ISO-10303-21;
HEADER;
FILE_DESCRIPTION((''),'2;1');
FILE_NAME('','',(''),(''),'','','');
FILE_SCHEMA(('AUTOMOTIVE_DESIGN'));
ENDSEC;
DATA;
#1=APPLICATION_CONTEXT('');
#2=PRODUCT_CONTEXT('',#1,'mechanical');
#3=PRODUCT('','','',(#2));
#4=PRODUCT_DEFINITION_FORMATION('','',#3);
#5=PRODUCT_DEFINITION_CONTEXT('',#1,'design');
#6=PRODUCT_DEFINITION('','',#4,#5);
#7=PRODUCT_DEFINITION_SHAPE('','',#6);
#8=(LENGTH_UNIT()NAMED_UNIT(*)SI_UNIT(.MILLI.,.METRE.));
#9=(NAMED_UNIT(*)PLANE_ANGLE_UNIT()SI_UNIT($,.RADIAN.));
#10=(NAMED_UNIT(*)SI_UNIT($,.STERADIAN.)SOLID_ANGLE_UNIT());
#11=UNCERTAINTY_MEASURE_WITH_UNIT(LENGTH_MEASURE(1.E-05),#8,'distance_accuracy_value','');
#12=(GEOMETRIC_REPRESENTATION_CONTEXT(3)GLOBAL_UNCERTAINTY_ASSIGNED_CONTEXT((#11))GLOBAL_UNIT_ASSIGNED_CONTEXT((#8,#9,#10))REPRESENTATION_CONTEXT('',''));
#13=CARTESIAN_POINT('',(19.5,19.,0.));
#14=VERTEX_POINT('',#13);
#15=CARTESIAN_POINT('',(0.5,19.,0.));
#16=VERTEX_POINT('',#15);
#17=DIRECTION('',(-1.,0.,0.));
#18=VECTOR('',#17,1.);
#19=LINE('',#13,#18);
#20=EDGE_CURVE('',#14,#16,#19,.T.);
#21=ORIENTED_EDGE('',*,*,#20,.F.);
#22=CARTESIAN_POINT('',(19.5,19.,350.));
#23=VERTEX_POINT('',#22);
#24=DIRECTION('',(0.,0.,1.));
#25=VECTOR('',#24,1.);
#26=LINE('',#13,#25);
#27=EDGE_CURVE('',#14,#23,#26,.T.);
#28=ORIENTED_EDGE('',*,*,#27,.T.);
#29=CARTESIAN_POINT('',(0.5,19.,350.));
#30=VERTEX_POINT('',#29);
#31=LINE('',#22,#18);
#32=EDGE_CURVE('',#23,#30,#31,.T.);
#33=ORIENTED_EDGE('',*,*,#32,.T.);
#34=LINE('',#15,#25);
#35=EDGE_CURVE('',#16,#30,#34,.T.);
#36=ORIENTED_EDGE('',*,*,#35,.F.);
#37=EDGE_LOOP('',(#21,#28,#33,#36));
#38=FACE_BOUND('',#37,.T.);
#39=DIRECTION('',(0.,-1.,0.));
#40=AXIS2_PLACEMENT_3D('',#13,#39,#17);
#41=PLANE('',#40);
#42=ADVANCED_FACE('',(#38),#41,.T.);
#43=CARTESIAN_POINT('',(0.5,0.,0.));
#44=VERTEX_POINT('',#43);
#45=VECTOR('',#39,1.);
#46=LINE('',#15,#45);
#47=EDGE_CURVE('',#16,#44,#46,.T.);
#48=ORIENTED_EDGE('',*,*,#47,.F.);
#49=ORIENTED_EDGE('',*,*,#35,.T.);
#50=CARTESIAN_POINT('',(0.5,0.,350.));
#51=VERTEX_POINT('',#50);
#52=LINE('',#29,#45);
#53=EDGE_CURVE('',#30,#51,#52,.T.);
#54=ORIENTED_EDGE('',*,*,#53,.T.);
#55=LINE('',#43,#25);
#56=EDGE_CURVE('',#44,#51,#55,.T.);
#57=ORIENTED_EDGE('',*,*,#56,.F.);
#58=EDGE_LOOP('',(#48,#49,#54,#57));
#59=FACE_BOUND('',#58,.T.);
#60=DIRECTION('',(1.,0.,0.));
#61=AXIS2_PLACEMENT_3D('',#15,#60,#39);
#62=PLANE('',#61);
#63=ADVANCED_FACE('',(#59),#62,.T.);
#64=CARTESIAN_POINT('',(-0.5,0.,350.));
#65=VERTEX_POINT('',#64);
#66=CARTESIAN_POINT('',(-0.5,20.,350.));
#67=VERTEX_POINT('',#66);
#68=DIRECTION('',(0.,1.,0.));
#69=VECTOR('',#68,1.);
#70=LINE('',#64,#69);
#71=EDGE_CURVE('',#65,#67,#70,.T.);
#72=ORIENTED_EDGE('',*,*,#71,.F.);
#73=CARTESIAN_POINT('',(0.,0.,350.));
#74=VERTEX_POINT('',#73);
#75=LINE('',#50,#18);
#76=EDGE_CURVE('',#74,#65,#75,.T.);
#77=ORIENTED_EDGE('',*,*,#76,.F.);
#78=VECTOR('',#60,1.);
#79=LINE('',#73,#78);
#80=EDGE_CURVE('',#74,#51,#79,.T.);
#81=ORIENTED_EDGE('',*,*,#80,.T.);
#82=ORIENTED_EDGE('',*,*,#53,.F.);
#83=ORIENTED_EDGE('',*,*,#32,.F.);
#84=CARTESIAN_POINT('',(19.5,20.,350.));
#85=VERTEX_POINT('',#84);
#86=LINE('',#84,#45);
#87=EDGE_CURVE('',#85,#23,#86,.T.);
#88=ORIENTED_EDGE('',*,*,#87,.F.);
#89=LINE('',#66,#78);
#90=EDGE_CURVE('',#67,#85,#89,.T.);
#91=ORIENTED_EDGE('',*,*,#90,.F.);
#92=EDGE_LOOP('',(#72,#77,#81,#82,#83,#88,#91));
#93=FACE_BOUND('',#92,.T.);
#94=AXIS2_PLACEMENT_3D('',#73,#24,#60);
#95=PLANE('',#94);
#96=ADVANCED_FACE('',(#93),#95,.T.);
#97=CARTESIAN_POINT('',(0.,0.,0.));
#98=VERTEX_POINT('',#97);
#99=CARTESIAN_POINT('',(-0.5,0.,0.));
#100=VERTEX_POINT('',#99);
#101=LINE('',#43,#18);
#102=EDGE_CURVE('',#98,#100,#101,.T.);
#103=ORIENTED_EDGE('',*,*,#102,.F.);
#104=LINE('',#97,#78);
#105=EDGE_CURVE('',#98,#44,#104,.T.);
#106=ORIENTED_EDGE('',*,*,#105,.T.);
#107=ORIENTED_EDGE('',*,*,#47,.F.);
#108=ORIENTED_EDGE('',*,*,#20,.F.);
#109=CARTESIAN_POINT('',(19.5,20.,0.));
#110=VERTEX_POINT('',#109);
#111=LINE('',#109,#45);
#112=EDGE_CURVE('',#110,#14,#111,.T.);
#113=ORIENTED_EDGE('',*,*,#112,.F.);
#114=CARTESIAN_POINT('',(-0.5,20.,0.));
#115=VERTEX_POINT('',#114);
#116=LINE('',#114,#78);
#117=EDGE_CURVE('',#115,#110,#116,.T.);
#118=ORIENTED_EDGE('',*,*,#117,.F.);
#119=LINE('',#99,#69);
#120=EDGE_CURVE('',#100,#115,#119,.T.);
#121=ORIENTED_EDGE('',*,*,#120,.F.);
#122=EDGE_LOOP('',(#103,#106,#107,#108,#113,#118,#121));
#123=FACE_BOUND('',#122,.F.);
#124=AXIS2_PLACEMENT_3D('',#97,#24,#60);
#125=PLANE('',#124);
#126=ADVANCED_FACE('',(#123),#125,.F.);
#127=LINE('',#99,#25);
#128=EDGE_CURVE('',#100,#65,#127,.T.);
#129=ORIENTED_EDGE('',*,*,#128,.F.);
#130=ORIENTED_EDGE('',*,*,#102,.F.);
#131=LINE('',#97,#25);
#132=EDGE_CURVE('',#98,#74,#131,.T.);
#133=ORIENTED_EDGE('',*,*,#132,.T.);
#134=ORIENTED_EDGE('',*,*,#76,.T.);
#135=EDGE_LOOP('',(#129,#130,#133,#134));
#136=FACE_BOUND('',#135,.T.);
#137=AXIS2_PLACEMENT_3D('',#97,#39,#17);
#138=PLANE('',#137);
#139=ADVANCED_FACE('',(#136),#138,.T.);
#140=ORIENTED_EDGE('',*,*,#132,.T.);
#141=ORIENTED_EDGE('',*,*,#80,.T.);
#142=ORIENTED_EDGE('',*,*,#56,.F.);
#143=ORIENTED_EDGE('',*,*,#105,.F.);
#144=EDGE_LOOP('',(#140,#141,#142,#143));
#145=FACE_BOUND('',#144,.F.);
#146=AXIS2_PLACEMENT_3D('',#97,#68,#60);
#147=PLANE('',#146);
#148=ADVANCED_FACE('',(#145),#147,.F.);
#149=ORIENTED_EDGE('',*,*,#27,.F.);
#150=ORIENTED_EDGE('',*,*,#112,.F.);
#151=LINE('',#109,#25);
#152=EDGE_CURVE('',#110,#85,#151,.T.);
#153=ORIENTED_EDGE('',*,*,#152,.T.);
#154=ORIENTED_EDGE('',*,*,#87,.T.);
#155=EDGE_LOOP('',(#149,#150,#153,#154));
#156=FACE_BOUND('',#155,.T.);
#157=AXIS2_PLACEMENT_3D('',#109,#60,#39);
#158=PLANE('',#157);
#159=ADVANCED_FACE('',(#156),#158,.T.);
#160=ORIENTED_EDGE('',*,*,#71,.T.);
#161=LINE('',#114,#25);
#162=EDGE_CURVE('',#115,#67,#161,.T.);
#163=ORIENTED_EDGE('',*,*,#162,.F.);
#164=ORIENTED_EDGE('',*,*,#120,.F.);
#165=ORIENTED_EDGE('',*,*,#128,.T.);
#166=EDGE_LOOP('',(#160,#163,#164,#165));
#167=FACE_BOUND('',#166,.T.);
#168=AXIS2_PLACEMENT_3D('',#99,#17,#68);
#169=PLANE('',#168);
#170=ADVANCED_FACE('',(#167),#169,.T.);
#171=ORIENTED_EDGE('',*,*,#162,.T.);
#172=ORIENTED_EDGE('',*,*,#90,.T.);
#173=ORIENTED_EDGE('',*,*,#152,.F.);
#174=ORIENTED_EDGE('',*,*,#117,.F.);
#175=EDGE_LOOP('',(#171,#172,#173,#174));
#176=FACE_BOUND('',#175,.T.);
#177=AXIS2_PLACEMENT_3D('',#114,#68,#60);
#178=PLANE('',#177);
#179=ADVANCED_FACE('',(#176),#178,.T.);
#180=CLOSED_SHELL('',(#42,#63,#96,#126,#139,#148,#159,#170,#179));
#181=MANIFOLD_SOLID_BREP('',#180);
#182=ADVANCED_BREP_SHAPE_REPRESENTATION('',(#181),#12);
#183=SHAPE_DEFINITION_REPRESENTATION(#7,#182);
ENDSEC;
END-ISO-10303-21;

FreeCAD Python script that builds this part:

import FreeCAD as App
import Part
import Sketcher

V = App.Vector

doc = App.newDocument("Part")
body = doc.addObject("PartDesign::Body", "Body")

# Sketch on XY plane
sketch1 = doc.addObject("Sketcher::SketchObject", "Sketch")
body.addObject(sketch1)
sketch1.AttachmentSupport = (doc.XY_Plane, [""])
sketch1.MapMode = "FlatFace"
sketch1.addGeometry([
    Part.LineSegment(V(-0.5, 0, 0), V(0.5, 0, 0)),  # 0
    Part.LineSegment(V(0.5, 0, 0), V(0.5, 19, 0)),  # 1
    Part.LineSegment(V(0.5, 19, 0), V(19.5, 19, 0)),  # 2
    Part.LineSegment(V(19.5, 19, 0), V(19.5, 20, 0)),  # 3
    Part.LineSegment(V(19.5, 20, 0), V(-0.5, 20, 0)),  # 4
    Part.LineSegment(V(-0.5, 20, 0), V(-0.5, 0, 0)),  # 5
], False)
sketch1.addConstraint([
    Sketcher.Constraint("Coincident", 0, 2, 1, 1),
    Sketcher.Constraint("Coincident", 1, 2, 2, 1),
    Sketcher.Constraint("Coincident", 2, 2, 3, 1),
    Sketcher.Constraint("Coincident", 3, 2, 4, 1),
    Sketcher.Constraint("Coincident", 4, 2, 5, 1),
    Sketcher.Constraint("Coincident", 5, 2, 0, 1),
    Sketcher.Constraint("Horizontal", 0),
    Sketcher.Constraint("Vertical", 1),
    Sketcher.Constraint("Horizontal", 2),
    Sketcher.Constraint("Vertical", 3),
    Sketcher.Constraint("Horizontal", 4),
    Sketcher.Constraint("Vertical", 5),
    Sketcher.Constraint("Symmetric", 0, 2, 5, 2, -1, 1),
    Sketcher.Constraint("Equal", 2, 1),
    Sketcher.Constraint("Equal", 0, 3),
    Sketcher.Constraint("DistanceX", 0, 1, 0, 2, 1.0),
    Sketcher.Constraint("DistanceX", 4, 2, 4, 1, 20.0),
])
pad1 = doc.addObject("PartDesign::Pad", "Pad")
body.addObject(pad1)
pad1.Profile = sketch1
pad1.Length = 350

doc.recompute()
